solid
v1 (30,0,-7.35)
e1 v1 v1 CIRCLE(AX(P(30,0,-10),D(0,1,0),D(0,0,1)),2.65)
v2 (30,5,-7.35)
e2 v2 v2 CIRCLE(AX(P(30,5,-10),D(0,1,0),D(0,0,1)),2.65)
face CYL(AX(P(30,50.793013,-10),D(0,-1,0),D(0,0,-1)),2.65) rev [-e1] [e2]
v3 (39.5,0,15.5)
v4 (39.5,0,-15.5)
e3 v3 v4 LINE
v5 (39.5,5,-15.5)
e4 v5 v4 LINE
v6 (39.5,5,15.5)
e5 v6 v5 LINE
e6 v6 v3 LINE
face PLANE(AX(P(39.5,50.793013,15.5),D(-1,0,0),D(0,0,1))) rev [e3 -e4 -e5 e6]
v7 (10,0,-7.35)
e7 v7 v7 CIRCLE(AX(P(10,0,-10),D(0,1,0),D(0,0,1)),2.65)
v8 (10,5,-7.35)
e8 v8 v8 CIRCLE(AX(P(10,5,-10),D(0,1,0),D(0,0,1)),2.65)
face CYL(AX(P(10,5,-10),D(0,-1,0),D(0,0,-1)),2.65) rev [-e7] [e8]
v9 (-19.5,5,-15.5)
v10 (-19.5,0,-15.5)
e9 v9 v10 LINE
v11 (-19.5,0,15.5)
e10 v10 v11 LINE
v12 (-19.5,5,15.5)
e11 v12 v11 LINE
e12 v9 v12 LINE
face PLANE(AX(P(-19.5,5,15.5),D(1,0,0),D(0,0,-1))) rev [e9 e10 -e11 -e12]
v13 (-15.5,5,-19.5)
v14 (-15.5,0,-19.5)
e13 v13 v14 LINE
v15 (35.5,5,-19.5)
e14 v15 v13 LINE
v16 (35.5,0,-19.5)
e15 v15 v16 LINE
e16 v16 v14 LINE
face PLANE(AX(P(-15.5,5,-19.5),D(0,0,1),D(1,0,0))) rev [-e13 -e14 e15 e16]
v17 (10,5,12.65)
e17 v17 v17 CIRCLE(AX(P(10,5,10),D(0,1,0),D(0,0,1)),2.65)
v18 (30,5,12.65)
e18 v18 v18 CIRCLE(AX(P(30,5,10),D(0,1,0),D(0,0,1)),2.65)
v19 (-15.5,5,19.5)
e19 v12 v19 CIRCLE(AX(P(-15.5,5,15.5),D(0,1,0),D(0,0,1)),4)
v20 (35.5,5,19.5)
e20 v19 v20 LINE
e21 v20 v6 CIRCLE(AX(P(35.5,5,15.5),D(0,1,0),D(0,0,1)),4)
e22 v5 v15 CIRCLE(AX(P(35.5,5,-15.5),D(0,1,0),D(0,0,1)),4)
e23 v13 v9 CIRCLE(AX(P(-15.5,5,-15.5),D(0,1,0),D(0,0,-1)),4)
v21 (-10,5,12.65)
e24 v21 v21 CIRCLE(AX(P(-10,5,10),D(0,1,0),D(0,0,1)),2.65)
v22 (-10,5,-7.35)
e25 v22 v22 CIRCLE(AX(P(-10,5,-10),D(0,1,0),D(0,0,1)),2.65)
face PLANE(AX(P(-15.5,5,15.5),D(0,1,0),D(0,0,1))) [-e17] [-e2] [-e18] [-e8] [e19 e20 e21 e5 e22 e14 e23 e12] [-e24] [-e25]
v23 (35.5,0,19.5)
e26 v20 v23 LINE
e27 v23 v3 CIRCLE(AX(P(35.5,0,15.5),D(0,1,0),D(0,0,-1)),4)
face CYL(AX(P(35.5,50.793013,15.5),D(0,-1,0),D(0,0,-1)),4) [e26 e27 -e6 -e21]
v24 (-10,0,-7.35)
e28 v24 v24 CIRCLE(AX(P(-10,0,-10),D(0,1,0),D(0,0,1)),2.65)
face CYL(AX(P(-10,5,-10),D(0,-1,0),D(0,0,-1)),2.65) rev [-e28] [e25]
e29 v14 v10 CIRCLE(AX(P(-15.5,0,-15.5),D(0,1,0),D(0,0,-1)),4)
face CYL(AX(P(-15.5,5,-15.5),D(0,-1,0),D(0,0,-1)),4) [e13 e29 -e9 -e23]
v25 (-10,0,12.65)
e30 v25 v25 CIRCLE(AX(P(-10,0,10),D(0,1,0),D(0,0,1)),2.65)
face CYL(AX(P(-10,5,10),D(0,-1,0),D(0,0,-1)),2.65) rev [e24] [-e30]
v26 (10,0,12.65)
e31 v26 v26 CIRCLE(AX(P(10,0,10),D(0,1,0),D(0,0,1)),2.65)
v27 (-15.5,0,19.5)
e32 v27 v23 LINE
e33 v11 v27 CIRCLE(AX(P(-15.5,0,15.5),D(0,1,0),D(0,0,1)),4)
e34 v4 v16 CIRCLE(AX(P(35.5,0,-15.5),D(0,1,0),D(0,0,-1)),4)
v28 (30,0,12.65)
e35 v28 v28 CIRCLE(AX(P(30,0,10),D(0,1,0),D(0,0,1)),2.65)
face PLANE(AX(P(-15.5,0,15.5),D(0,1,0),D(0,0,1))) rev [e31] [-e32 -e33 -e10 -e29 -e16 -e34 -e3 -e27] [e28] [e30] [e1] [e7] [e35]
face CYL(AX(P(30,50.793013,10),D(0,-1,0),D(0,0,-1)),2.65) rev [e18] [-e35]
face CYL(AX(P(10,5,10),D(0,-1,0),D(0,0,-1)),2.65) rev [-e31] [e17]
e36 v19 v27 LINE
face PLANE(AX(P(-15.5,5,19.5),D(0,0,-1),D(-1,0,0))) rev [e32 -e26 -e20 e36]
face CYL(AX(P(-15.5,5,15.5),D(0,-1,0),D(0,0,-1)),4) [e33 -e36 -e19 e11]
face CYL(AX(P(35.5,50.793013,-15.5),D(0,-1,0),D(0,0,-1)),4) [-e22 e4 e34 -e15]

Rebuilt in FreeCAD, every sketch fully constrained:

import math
import FreeCAD as App
import Part
import Sketcher
from FreeCAD import Vector

doc = App.newDocument("Part")
params = doc.addObject("Spreadsheet::Sheet", "Params")
for row, (alias, value) in enumerate([
    ("sketch1_radius", "4 mm"),
    ("sketch1_diameter", "5.3 mm"),
    ("sketch1_width", "31 mm"),
    ("pad1_length", "5 mm"),
    ("sketch2_radius", "4 mm"),
    ("sketch2_diameter", "5.3 mm"),
    ("sketch2_width", "20 mm"),
    ("sketch2_height", "31 mm"),
    ("pad2_length", "5 mm"),
], start=1):
    params.set(f"A{row}", alias)
    params.set(f"B{row}", "=" + value)
    params.setAlias(f"B{row}", alias)

body = doc.addObject("PartDesign::Body", "Body")

sketch1 = body.newObject("Sketcher::SketchObject", "Sketch")
sketch1.AttachmentSupport = (doc.getObject("XZ_Plane"), [""])
sketch1.MapMode = "FlatFace"
sketch1.addGeometry([
    Part.LineSegment(Vector(-15.5, 19.5, 0), Vector(15.5, 19.5, 0)),
    Part.ArcOfCircle(Part.Circle(Vector(15.5, 15.5, 0), Vector(0, 0, 1), 4), math.radians(0), math.radians(90)),
    Part.LineSegment(Vector(19.5, 15.5, 0), Vector(19.5, -15.5, 0)),
    Part.ArcOfCircle(Part.Circle(Vector(15.5, -15.5, 0), Vector(0, 0, 1), 4), math.radians(-90), math.radians(0)),
    Part.LineSegment(Vector(15.5, -19.5, 0), Vector(-15.5, -19.5, 0)),
    Part.ArcOfCircle(Part.Circle(Vector(-15.5, -15.5, 0), Vector(0, 0, 1), 4), math.radians(180), math.radians(270)),
    Part.LineSegment(Vector(-19.5, -15.5, 0), Vector(-19.5, 15.5, 0)),
    Part.ArcOfCircle(Part.Circle(Vector(-15.5, 15.5, 0), Vector(0, 0, 1), 4), math.radians(90), math.radians(180)),
    Part.Circle(Vector(-10, 10, 0), Vector(0, 0, 1), 2.6),
    Part.Circle(Vector(10, 10, 0), Vector(0, 0, 1), 2.6),
    Part.Circle(Vector(-10, -10, 0), Vector(0, 0, 1), 2.6),
    Part.Circle(Vector(10, -10, 0), Vector(0, 0, 1), 2.6),
], False)
sketch1.addConstraint([
    Sketcher.Constraint("Tangent", 0, 2, 1, 2),
    Sketcher.Constraint("Tangent", 1, 1, 2, 1),
    Sketcher.Constraint("Tangent", 2, 2, 3, 2),
    Sketcher.Constraint("Tangent", 3, 1, 4, 1),
    Sketcher.Constraint("Tangent", 4, 2, 5, 2),
    Sketcher.Constraint("Tangent", 5, 1, 6, 1),
    Sketcher.Constraint("Tangent", 6, 2, 7, 2),
    Sketcher.Constraint("Tangent", 7, 1, 0, 1),
    Sketcher.Constraint("Horizontal", 0),
    Sketcher.Constraint("Vertical", 2),
    Sketcher.Constraint("Horizontal", 4),
    Sketcher.Constraint("Vertical", 6),
    Sketcher.Constraint("Equal", 1, 3),
    Sketcher.Constraint("Equal", 3, 5),
    Sketcher.Constraint("Equal", 5, 7),
    Sketcher.Constraint("Equal", 8, 9),
    Sketcher.Constraint("Equal", 9, 10),
    Sketcher.Constraint("Equal", 10, 11),
    Sketcher.Constraint("Symmetric", 1, 3, 5, 3, -1, 1),
    Sketcher.Constraint("Symmetric", 9, 3, 10, 3, -1, 1),
    Sketcher.Constraint("Symmetric", 8, 3, 11, 3, -1, 1),
    Sketcher.Constraint("Symmetric", 8, 3, 9, 3, -2),
    Sketcher.Constraint("Equal", 4, 2),
    Sketcher.Constraint("Radius", 1, 4.0),
    Sketcher.Constraint("Diameter", 8, 5.3),
    Sketcher.Constraint("DistanceX", 0, 1, 0, 2, 31.0),
    Sketcher.Constraint("DistanceX", 8, 3, -1, 1, 10.0),
    Sketcher.Constraint("DistanceY", -1, 1, 8, 3, 10.0),
])
sketch1.setExpression("Constraints[23]", "Params.sketch1_radius")
sketch1.setExpression("Constraints[24]", "Params.sketch1_diameter")
sketch1.setExpression("Constraints[25]", "Params.sketch1_width")
pad1 = body.newObject("PartDesign::Pad", "Pad")
pad1.Profile = sketch1
pad1.setExpression("Length", "Params.pad1_length")
pad1.Reversed = True

sketch2 = body.newObject("Sketcher::SketchObject", "Sketch001")
sketch2.AttachmentSupport = (doc.getObject("XZ_Plane"), [""])
sketch2.MapMode = "FlatFace"
sketch2.addGeometry([
    Part.LineSegment(Vector(39.5, 15.5, 0), Vector(39.5, -15.5, 0)),
    Part.ArcOfCircle(Part.Circle(Vector(35.5, -15.5, 0), Vector(0, 0, 1), 4), math.radians(-90), math.radians(0)),
    Part.LineSegment(Vector(35.5, -19.5, 0), Vector(15.5, -19.5, 0)),
    Part.ArcOfCircle(Part.Circle(Vector(15.5, -15.5, 0), Vector(0, 0, 1), 4), math.radians(-90), math.radians(0)),
    Part.LineSegment(Vector(19.5, -15.5, 0), Vector(19.5, 15.5, 0)),
    Part.ArcOfCircle(Part.Circle(Vector(15.5, 15.5, 0), Vector(0, 0, 1), 4), math.radians(0), math.radians(90)),
    Part.LineSegment(Vector(15.5, 19.5, 0), Vector(35.5, 19.5, 0)),
    Part.ArcOfCircle(Part.Circle(Vector(35.5, 15.5, 0), Vector(0, 0, 1), 4), math.radians(0), math.radians(90)),
    Part.Circle(Vector(30, 10, 0), Vector(0, 0, 1), 2.6),
    Part.Circle(Vector(30, -10, 0), Vector(0, 0, 1), 2.6),
], False)
sketch2.addConstraint([
    Sketcher.Constraint("Tangent", 0, 2, 1, 2),
    Sketcher.Constraint("Tangent", 1, 1, 2, 1),
    Sketcher.Constraint("Tangent", 2, 2, 3, 1),
    Sketcher.Constraint("Tangent", 3, 2, 4, 1),
    Sketcher.Constraint("Tangent", 4, 2, 5, 1),
    Sketcher.Constraint("Tangent", 5, 2, 6, 1),
    Sketcher.Constraint("Tangent", 6, 2, 7, 2),
    Sketcher.Constraint("Tangent", 7, 1, 0, 1),
    Sketcher.Constraint("Vertical", 0),
    Sketcher.Constraint("Horizontal", 2),
    Sketcher.Constraint("Vertical", 4),
    Sketcher.Constraint("Horizontal", 6),
    Sketcher.Constraint("Equal", 1, 3),
    Sketcher.Constraint("Equal", 3, 5),
    Sketcher.Constraint("Equal", 5, 7),
    Sketcher.Constraint("Equal", 8, 9),
    Sketcher.Constraint("Symmetric", 8, 3, 9, 3, -1),
    Sketcher.Constraint("Radius", 1, 4.0),
    Sketcher.Constraint("Diameter", 8, 5.3),
    Sketcher.Constraint("DistanceX", 2, 2, 2, 1, 20.0),
    Sketcher.Constraint("DistanceY", 0, 2, 0, 1, 31.0),
    Sketcher.Constraint("DistanceX", -1, 1, 8, 3, 30.0),
    Sketcher.Constraint("DistanceY", -1, 1, 8, 3, 10.0),
    Sketcher.Constraint("DistanceX", -1, 1, 1, 3, 35.5),
    Sketcher.Constraint("DistanceY", 1, 3, -1, 1, 15.5),
])
sketch2.setExpression("Constraints[17]", "Params.sketch2_radius")
sketch2.setExpression("Constraints[18]", "Params.sketch2_diameter")
sketch2.setExpression("Constraints[19]", "Params.sketch2_width")
sketch2.setExpression("Constraints[20]", "Params.sketch2_height")
pad2 = body.newObject("PartDesign::Pad", "Pad001")
pad2.Profile = sketch2
pad2.setExpression("Length", "Params.pad2_length")
pad2.Reversed = True

doc.recompute()
